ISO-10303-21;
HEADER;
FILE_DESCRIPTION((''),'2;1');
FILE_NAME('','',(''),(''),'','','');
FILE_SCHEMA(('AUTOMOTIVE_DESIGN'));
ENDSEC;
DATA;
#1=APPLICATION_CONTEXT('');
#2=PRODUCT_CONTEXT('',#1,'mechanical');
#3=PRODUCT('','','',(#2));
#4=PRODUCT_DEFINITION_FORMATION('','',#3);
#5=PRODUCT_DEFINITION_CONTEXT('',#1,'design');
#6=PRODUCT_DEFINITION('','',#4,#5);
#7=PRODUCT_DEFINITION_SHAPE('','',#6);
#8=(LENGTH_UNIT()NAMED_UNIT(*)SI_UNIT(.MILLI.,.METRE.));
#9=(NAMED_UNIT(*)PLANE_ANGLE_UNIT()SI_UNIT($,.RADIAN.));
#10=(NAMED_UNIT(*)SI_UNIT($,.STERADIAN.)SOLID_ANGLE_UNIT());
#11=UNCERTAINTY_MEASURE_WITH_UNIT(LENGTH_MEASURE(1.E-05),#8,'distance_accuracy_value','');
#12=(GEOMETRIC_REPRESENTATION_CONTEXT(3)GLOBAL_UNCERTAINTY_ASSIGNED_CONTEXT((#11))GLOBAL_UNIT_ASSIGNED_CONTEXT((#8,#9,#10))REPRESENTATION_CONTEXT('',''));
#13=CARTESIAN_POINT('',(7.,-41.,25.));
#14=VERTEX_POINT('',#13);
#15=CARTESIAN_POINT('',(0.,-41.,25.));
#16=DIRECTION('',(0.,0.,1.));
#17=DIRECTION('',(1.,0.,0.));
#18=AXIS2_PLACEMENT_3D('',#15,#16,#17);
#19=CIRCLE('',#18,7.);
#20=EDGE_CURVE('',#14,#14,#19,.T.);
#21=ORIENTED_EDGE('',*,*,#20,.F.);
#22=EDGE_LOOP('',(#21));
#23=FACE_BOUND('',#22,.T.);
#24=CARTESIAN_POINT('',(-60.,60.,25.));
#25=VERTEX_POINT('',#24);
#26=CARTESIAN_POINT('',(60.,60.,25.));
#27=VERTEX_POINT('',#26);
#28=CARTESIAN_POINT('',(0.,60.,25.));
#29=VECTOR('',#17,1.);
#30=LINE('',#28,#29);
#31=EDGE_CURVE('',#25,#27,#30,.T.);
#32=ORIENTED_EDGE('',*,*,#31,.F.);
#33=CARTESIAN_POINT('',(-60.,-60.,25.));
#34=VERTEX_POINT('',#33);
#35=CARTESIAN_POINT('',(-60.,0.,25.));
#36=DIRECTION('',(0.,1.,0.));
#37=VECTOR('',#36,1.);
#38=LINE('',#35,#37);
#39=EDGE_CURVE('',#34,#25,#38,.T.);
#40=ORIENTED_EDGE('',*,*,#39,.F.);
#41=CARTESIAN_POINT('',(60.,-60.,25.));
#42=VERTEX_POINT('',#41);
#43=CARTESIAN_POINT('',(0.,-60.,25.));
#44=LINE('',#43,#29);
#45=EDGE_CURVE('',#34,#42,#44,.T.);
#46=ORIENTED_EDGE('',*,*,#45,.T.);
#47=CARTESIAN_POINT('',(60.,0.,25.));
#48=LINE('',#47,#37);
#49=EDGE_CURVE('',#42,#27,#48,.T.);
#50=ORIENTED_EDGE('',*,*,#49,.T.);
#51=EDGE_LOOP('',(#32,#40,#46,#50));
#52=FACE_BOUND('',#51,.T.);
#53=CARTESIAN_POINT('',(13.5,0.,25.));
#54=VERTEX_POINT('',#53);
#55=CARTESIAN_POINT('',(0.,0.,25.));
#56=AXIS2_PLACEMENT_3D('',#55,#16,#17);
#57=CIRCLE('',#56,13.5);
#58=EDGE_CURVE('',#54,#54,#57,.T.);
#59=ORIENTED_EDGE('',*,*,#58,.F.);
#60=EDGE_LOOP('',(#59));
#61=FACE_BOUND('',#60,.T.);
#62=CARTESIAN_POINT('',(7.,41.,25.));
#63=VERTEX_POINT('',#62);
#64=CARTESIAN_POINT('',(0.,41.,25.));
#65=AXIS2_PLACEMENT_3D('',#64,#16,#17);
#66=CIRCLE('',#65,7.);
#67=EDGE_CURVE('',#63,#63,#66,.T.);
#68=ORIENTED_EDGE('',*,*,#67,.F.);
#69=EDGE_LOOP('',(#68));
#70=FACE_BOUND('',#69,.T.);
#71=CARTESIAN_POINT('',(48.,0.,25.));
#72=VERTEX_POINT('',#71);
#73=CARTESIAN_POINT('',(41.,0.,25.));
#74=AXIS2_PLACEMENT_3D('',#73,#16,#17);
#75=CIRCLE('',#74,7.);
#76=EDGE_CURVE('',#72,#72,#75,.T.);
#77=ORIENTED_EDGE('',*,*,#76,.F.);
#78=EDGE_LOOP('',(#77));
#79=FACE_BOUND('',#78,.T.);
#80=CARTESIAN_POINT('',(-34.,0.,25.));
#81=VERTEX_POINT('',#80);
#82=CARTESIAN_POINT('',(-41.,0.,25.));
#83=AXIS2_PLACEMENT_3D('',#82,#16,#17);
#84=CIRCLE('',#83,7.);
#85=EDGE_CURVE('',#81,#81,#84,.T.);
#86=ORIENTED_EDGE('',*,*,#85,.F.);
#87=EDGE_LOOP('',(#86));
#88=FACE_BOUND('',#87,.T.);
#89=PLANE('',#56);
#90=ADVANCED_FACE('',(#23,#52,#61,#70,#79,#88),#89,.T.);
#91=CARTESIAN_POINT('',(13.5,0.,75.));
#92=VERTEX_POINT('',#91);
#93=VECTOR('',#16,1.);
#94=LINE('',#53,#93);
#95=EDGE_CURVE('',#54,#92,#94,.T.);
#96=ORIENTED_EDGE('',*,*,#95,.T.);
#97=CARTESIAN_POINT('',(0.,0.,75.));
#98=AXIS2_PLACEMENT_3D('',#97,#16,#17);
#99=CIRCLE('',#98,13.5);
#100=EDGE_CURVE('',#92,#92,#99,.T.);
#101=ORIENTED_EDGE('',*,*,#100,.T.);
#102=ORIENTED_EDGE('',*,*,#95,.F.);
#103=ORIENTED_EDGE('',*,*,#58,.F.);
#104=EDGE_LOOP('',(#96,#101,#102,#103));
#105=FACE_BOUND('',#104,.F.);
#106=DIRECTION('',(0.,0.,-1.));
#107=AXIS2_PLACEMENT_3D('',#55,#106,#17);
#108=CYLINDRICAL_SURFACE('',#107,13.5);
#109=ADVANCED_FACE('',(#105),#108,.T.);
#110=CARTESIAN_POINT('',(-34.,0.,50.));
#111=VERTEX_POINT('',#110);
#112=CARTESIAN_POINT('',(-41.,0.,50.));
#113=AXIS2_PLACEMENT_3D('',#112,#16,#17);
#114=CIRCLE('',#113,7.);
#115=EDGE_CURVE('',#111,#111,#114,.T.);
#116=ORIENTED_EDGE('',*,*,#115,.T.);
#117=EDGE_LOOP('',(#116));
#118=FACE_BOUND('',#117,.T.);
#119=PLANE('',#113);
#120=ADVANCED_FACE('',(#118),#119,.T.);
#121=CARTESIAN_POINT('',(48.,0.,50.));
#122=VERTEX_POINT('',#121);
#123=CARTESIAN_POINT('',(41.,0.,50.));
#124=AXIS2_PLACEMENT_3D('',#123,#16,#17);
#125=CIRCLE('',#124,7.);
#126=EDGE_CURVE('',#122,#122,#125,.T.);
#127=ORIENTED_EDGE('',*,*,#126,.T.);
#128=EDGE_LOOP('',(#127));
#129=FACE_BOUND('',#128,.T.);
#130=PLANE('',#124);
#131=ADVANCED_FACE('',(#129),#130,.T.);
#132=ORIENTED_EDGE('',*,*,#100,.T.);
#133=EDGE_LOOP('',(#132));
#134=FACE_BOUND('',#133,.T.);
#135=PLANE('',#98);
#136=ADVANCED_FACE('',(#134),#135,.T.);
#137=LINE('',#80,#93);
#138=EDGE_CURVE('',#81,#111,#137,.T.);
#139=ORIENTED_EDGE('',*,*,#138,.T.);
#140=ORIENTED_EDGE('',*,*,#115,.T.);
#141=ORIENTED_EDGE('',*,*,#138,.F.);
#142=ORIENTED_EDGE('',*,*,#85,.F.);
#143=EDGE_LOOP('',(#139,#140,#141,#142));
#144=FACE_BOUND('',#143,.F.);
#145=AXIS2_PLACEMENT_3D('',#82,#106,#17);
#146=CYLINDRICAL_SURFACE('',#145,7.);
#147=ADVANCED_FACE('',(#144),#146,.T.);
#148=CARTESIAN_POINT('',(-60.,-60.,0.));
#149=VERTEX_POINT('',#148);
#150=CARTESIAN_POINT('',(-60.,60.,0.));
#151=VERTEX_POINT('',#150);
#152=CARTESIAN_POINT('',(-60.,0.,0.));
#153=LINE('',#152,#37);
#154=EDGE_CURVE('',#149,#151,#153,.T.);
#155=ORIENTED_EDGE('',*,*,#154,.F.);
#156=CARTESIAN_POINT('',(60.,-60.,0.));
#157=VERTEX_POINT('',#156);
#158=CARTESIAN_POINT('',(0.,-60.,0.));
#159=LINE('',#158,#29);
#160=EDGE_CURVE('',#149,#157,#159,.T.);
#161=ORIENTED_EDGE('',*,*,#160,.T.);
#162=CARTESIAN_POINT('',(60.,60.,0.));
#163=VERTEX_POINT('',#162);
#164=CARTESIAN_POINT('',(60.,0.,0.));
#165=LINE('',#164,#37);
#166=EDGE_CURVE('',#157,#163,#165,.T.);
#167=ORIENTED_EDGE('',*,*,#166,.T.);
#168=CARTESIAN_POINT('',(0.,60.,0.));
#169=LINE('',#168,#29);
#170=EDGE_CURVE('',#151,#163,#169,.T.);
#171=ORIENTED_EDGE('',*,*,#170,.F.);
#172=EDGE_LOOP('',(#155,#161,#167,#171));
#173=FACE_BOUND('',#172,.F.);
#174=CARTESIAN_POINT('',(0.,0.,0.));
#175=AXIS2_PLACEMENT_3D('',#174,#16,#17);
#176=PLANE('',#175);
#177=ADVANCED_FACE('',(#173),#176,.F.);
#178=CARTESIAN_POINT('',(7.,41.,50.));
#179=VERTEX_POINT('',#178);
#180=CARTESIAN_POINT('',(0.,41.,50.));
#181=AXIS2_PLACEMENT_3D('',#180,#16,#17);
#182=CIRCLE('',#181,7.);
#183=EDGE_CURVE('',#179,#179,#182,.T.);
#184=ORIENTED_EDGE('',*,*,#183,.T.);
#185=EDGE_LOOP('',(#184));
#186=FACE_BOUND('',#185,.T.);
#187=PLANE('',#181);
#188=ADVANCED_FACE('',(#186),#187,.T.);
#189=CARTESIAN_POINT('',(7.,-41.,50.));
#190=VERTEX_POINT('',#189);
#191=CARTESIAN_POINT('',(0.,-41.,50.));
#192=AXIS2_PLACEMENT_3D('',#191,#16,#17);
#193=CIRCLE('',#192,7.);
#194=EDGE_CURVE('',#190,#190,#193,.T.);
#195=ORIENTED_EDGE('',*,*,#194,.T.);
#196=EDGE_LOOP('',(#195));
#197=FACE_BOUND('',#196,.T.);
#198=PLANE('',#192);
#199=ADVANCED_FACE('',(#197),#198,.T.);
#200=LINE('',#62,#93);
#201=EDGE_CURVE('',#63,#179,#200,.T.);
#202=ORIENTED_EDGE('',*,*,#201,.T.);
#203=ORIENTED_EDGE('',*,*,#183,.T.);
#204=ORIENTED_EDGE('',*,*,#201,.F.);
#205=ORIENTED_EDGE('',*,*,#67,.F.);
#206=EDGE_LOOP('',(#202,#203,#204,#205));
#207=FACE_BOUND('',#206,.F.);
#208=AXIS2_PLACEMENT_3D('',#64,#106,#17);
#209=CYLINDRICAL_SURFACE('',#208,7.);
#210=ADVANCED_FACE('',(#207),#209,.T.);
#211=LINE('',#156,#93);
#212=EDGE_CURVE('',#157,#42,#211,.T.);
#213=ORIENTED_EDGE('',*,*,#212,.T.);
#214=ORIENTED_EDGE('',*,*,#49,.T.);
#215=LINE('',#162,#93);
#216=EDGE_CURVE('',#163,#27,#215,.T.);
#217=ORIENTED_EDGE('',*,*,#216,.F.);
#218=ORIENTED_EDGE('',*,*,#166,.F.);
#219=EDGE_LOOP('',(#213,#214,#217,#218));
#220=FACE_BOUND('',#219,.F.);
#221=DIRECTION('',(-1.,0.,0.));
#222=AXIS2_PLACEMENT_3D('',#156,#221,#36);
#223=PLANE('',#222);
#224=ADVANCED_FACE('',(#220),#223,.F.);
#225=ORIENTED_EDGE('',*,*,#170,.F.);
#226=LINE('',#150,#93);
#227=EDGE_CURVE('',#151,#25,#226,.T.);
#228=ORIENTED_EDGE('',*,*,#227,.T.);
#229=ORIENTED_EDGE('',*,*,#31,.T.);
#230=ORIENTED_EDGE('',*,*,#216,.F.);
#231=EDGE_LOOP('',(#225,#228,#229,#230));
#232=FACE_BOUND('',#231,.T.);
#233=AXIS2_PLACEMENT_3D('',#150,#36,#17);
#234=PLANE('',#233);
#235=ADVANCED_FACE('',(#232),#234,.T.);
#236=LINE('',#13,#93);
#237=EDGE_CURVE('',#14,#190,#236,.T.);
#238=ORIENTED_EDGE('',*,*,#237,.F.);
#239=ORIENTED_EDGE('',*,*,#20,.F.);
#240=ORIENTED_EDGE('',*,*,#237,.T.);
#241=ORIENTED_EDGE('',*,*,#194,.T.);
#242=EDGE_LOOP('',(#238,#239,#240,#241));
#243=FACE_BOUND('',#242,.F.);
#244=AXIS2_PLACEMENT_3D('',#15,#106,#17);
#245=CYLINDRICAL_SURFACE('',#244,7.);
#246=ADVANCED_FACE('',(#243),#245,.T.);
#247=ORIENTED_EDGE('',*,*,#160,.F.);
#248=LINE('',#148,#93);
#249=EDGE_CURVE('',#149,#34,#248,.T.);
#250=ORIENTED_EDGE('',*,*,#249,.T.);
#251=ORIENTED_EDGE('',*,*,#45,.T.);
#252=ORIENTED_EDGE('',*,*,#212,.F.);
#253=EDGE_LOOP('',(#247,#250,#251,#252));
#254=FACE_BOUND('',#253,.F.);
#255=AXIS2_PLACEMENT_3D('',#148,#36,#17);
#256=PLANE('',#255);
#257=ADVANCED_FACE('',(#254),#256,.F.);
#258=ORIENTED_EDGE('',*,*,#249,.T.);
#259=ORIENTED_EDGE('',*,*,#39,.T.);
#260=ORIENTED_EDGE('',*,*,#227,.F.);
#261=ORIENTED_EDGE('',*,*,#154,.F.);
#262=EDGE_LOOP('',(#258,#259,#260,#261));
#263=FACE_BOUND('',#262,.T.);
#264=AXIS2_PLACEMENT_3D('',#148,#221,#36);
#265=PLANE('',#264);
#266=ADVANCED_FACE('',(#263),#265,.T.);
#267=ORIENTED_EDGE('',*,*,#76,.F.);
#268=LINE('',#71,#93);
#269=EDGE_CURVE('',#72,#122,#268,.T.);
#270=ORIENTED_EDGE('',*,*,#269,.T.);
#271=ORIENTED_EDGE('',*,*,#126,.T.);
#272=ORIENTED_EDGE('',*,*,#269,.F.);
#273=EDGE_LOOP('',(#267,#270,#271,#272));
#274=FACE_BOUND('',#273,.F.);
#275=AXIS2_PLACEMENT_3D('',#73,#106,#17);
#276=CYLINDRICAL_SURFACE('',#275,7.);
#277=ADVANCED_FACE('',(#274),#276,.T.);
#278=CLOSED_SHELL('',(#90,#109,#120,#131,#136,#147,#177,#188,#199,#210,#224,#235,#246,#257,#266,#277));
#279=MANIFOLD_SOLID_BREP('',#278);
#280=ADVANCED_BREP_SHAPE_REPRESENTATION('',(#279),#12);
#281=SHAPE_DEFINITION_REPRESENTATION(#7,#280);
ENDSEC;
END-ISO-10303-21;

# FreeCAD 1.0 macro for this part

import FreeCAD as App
import Part
import Sketcher

V = App.Vector
Q = App.Units.Quantity

doc = App.newDocument("Part")
body = doc.addObject("PartDesign::Body", "Body")

# Sketch on XY plane
sketch1 = body.newObject("Sketcher::SketchObject", "Sketch")
sketch1.AttachmentSupport = (doc.getObject("XY_Plane"), [""])
sketch1.MapMode = "FlatFace"
sketch1.addGeometry(Part.LineSegment(V(-60, 60, 0), V(-60, -60, 0)), False)
sketch1.addGeometry(Part.LineSegment(V(-60, -60, 0), V(60, -60, 0)), False)
sketch1.addGeometry(Part.LineSegment(V(60, -60, 0), V(60, 60, 0)), False)
sketch1.addGeometry(Part.LineSegment(V(60, 60, 0), V(-60, 60, 0)), False)
sketch1.addConstraint(Sketcher.Constraint("Coincident", 0, 2, 1, 1))
sketch1.addConstraint(Sketcher.Constraint("Coincident", 1, 2, 2, 1))
sketch1.addConstraint(Sketcher.Constraint("Coincident", 2, 2, 3, 1))
sketch1.addConstraint(Sketcher.Constraint("Coincident", 3, 2, 0, 1))
sketch1.addConstraint(Sketcher.Constraint("Vertical", 0))
sketch1.addConstraint(Sketcher.Constraint("Horizontal", 1))
sketch1.addConstraint(Sketcher.Constraint("Vertical", 2))
sketch1.addConstraint(Sketcher.Constraint("Horizontal", 3))
sketch1.addConstraint(Sketcher.Constraint("Symmetric", 0, 2, 2, 2, -1, 1))
sketch1.addConstraint(Sketcher.Constraint("Equal", 3, 0))
sketch1.addConstraint(Sketcher.Constraint("DistanceX", 1, 1, 1, 2, Q("120 mm")))
pad1 = body.newObject("PartDesign::Pad", "Pad")
pad1.Profile = sketch1
pad1.Length = 25

# Sketch on XY plane
sketch2 = body.newObject("Sketcher::SketchObject", "Sketch001")
sketch2.AttachmentSupport = (doc.getObject("XY_Plane"), [""])
sketch2.MapMode = "FlatFace"
sketch2.AttachmentOffset = App.Placement(V(0, 0, 25), App.Rotation())
sketch2.addGeometry(Part.Circle(V(0, 41, 0), V(0, 0, 1), 7), False)
sketch2.addGeometry(Part.Circle(V(-41, 0, 0), V(0, 0, 1), 7), False)
sketch2.addGeometry(Part.Circle(V(0, -41, 0), V(0, 0, 1), 7), False)
sketch2.addGeometry(Part.Circle(V(41, 0, 0), V(0, 0, 1), 7), False)
sketch2.addConstraint(Sketcher.Constraint("Equal", 0, 1))
sketch2.addConstraint(Sketcher.Constraint("Equal", 1, 2))
sketch2.addConstraint(Sketcher.Constraint("Equal", 2, 3))
sketch2.addConstraint(Sketcher.Constraint("Symmetric", 0, 3, 2, 3, -1, 1))
sketch2.addConstraint(Sketcher.Constraint("Symmetric", 1, 3, 3, 3, -1, 1))
sketch2.addConstraint(Sketcher.Constraint("PointOnObject", 0, 3, -2))
sketch2.addConstraint(Sketcher.Constraint("PointOnObject", 1, 3, -1))
sketch2.addConstraint(Sketcher.Constraint("Diameter", 0, Q("14 mm")))
sketch2.addConstraint(Sketcher.Constraint("DistanceY", -1, 1, 0, 3, Q("41 mm")))
sketch2.addConstraint(Sketcher.Constraint("DistanceX", 1, 3, -1, 1, Q("41 mm")))
pad2 = body.newObject("PartDesign::Pad", "Pad001")
pad2.Profile = sketch2
pad2.Length = 25

# Sketch on XY plane
sketch3 = body.newObject("Sketcher::SketchObject", "Sketch002")
sketch3.AttachmentSupport = (doc.getObject("XY_Plane"), [""])
sketch3.MapMode = "FlatFace"
sketch3.AttachmentOffset = App.Placement(V(0, 0, 25), App.Rotation())
sketch3.addGeometry(Part.Circle(V(0, 0, 0), V(0, 0, 1), 14), False)
sketch3.addConstraint(Sketcher.Constraint("Coincident", 0, 3, -1, 1))
sketch3.addConstraint(Sketcher.Constraint("Diameter", 0, Q("27 mm")))
pad3 = body.newObject("PartDesign::Pad", "Pad002")
pad3.Profile = sketch3
pad3.Length = 50

doc.recompute()
